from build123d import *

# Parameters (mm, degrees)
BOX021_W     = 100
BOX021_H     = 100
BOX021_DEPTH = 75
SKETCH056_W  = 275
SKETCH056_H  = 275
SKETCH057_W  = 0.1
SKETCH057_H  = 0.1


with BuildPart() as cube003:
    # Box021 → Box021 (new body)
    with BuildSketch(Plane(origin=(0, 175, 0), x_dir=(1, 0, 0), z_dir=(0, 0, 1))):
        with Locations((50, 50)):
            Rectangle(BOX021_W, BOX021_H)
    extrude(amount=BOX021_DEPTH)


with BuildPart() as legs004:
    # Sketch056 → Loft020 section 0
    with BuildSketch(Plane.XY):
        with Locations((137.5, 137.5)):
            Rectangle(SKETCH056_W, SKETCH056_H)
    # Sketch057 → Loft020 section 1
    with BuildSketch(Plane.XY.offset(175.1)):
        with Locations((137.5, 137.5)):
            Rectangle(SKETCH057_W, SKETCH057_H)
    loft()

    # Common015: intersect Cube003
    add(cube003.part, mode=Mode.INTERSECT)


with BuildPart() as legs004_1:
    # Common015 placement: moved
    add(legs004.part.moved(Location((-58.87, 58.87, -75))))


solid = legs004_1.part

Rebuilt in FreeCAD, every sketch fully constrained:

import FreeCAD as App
import Part
import Sketcher
from FreeCAD import Vector

doc = App.newDocument("Part")
body = doc.addObject("PartDesign::Body", "Body")

sketch1 = body.newObject("Sketcher::SketchObject", "Sketch")
sketch1.AttachmentSupport = (doc.getObject("XY_Plane"), [""])
sketch1.MapMode = "FlatFace"
sketch1.addGeometry([
    Part.LineSegment(Vector(0, 275, 0), Vector(0, 175, 0)),
    Part.LineSegment(Vector(0, 175, 0), Vector(100, 175, 0)),
    Part.LineSegment(Vector(100, 175, 0), Vector(100, 275, 0)),
    Part.LineSegment(Vector(100, 275, 0), Vector(0, 275, 0)),
], False)
sketch1.addConstraint([
    Sketcher.Constraint("Coincident", 0, 2, 1, 1),
    Sketcher.Constraint("Coincident", 1, 2, 2, 1),
    Sketcher.Constraint("Coincident", 2, 2, 3, 1),
    Sketcher.Constraint("Coincident", 3, 2, 0, 1),
    Sketcher.Constraint("Vertical", 0),
    Sketcher.Constraint("Horizontal", 1),
    Sketcher.Constraint("Vertical", 2),
    Sketcher.Constraint("Horizontal", 3),
    Sketcher.Constraint("PointOnObject", 0, 2, -2),
    Sketcher.Constraint("Equal", 3, 0),
    Sketcher.Constraint("DistanceX", 1, 1, 1, 2, 100.0),
    Sketcher.Constraint("DistanceY", -1, 1, 0, 2, 175.0),
])
pad1 = body.newObject("PartDesign::Pad", "Pad")
pad1.Profile = sketch1
pad1.Length = 75
body2 = doc.addObject("PartDesign::Body", "Body001")

sketch2 = body2.newObject("Sketcher::SketchObject", "Sketch001")
sketch2.AttachmentSupport = (doc.getObject("XY_Plane001"), [""])
sketch2.MapMode = "FlatFace"
sketch2.addGeometry([
    Part.LineSegment(Vector(0, 275, 0), Vector(0, 0, 0)),
    Part.LineSegment(Vector(0, 0, 0), Vector(275, 0, 0)),
    Part.LineSegment(Vector(275, 0, 0), Vector(275, 275, 0)),
    Part.LineSegment(Vector(275, 275, 0), Vector(0, 275, 0)),
], False)
sketch2.addConstraint([
    Sketcher.Constraint("Coincident", 0, 2, 1, 1),
    Sketcher.Constraint("Coincident", 1, 2, 2, 1),
    Sketcher.Constraint("Coincident", 2, 2, 3, 1),
    Sketcher.Constraint("Coincident", 3, 2, 0, 1),
    Sketcher.Constraint("Vertical", 0),
    Sketcher.Constraint("Horizontal", 1),
    Sketcher.Constraint("Vertical", 2),
    Sketcher.Constraint("Horizontal", 3),
    Sketcher.Constraint("Coincident", 0, 2, -1, 1),
    Sketcher.Constraint("Equal", 3, 0),
    Sketcher.Constraint("DistanceX", 1, 1, 1, 2, 275.0),
])

sketch3 = body2.newObject("Sketcher::SketchObject", "Sketch002")
sketch3.AttachmentSupport = (doc.getObject("XY_Plane001"), [""])
sketch3.MapMode = "FlatFace"
sketch3.AttachmentOffset = App.Placement(Vector(0, 0, 175.1), App.Rotation())
sketch3.addGeometry([
    Part.LineSegment(Vector(137.45, 137.55, 0), Vector(137.45, 137.45, 0)),
    Part.LineSegment(Vector(137.45, 137.45, 0), Vector(137.55, 137.45, 0)),
    Part.LineSegment(Vector(137.55, 137.45, 0), Vector(137.55, 137.55, 0)),
    Part.LineSegment(Vector(137.55, 137.55, 0), Vector(137.45, 137.55, 0)),
], False)
sketch3.addConstraint([
    Sketcher.Constraint("Coincident", 0, 2, 1, 1),
    Sketcher.Constraint("Coincident", 1, 2, 2, 1),
    Sketcher.Constraint("Coincident", 2, 2, 3, 1),
    Sketcher.Constraint("Coincident", 3, 2, 0, 1),
    Sketcher.Constraint("Vertical", 0),
    Sketcher.Constraint("Horizontal", 1),
    Sketcher.Constraint("Vertical", 2),
    Sketcher.Constraint("Horizontal", 3),
    Sketcher.Constraint("Equal", 3, 0),
    Sketcher.Constraint("DistanceX", 1, 1, 1, 2, 0.1),
    Sketcher.Constraint("DistanceX", -1, 1, 0, 2, 137.45),
    Sketcher.Constraint("DistanceY", -1, 1, 0, 2, 137.45),
])

additiveloft = body2.newObject("PartDesign::AdditiveLoft", "AdditiveLoft")
additiveloft.Profile = sketch2
additiveloft.Sections = [sketch3]
doc.recompute()

boolean = body2.newObject("PartDesign::Boolean", "Boolean")
boolean.Type = "Common"
boolean.addObjects([body])
body3 = doc.addObject("PartDesign::Body", "Body002")
doc.recompute()

body2.Placement = App.Placement(Vector(-58.87, 58.87, -75), App.Rotation(Vector(0, 0, 1), 0))
boolean2 = body3.newObject("PartDesign::Boolean", "Boolean001")
boolean2.Type = "Fuse"
boolean2.addObjects([body2])

doc.recompute()
